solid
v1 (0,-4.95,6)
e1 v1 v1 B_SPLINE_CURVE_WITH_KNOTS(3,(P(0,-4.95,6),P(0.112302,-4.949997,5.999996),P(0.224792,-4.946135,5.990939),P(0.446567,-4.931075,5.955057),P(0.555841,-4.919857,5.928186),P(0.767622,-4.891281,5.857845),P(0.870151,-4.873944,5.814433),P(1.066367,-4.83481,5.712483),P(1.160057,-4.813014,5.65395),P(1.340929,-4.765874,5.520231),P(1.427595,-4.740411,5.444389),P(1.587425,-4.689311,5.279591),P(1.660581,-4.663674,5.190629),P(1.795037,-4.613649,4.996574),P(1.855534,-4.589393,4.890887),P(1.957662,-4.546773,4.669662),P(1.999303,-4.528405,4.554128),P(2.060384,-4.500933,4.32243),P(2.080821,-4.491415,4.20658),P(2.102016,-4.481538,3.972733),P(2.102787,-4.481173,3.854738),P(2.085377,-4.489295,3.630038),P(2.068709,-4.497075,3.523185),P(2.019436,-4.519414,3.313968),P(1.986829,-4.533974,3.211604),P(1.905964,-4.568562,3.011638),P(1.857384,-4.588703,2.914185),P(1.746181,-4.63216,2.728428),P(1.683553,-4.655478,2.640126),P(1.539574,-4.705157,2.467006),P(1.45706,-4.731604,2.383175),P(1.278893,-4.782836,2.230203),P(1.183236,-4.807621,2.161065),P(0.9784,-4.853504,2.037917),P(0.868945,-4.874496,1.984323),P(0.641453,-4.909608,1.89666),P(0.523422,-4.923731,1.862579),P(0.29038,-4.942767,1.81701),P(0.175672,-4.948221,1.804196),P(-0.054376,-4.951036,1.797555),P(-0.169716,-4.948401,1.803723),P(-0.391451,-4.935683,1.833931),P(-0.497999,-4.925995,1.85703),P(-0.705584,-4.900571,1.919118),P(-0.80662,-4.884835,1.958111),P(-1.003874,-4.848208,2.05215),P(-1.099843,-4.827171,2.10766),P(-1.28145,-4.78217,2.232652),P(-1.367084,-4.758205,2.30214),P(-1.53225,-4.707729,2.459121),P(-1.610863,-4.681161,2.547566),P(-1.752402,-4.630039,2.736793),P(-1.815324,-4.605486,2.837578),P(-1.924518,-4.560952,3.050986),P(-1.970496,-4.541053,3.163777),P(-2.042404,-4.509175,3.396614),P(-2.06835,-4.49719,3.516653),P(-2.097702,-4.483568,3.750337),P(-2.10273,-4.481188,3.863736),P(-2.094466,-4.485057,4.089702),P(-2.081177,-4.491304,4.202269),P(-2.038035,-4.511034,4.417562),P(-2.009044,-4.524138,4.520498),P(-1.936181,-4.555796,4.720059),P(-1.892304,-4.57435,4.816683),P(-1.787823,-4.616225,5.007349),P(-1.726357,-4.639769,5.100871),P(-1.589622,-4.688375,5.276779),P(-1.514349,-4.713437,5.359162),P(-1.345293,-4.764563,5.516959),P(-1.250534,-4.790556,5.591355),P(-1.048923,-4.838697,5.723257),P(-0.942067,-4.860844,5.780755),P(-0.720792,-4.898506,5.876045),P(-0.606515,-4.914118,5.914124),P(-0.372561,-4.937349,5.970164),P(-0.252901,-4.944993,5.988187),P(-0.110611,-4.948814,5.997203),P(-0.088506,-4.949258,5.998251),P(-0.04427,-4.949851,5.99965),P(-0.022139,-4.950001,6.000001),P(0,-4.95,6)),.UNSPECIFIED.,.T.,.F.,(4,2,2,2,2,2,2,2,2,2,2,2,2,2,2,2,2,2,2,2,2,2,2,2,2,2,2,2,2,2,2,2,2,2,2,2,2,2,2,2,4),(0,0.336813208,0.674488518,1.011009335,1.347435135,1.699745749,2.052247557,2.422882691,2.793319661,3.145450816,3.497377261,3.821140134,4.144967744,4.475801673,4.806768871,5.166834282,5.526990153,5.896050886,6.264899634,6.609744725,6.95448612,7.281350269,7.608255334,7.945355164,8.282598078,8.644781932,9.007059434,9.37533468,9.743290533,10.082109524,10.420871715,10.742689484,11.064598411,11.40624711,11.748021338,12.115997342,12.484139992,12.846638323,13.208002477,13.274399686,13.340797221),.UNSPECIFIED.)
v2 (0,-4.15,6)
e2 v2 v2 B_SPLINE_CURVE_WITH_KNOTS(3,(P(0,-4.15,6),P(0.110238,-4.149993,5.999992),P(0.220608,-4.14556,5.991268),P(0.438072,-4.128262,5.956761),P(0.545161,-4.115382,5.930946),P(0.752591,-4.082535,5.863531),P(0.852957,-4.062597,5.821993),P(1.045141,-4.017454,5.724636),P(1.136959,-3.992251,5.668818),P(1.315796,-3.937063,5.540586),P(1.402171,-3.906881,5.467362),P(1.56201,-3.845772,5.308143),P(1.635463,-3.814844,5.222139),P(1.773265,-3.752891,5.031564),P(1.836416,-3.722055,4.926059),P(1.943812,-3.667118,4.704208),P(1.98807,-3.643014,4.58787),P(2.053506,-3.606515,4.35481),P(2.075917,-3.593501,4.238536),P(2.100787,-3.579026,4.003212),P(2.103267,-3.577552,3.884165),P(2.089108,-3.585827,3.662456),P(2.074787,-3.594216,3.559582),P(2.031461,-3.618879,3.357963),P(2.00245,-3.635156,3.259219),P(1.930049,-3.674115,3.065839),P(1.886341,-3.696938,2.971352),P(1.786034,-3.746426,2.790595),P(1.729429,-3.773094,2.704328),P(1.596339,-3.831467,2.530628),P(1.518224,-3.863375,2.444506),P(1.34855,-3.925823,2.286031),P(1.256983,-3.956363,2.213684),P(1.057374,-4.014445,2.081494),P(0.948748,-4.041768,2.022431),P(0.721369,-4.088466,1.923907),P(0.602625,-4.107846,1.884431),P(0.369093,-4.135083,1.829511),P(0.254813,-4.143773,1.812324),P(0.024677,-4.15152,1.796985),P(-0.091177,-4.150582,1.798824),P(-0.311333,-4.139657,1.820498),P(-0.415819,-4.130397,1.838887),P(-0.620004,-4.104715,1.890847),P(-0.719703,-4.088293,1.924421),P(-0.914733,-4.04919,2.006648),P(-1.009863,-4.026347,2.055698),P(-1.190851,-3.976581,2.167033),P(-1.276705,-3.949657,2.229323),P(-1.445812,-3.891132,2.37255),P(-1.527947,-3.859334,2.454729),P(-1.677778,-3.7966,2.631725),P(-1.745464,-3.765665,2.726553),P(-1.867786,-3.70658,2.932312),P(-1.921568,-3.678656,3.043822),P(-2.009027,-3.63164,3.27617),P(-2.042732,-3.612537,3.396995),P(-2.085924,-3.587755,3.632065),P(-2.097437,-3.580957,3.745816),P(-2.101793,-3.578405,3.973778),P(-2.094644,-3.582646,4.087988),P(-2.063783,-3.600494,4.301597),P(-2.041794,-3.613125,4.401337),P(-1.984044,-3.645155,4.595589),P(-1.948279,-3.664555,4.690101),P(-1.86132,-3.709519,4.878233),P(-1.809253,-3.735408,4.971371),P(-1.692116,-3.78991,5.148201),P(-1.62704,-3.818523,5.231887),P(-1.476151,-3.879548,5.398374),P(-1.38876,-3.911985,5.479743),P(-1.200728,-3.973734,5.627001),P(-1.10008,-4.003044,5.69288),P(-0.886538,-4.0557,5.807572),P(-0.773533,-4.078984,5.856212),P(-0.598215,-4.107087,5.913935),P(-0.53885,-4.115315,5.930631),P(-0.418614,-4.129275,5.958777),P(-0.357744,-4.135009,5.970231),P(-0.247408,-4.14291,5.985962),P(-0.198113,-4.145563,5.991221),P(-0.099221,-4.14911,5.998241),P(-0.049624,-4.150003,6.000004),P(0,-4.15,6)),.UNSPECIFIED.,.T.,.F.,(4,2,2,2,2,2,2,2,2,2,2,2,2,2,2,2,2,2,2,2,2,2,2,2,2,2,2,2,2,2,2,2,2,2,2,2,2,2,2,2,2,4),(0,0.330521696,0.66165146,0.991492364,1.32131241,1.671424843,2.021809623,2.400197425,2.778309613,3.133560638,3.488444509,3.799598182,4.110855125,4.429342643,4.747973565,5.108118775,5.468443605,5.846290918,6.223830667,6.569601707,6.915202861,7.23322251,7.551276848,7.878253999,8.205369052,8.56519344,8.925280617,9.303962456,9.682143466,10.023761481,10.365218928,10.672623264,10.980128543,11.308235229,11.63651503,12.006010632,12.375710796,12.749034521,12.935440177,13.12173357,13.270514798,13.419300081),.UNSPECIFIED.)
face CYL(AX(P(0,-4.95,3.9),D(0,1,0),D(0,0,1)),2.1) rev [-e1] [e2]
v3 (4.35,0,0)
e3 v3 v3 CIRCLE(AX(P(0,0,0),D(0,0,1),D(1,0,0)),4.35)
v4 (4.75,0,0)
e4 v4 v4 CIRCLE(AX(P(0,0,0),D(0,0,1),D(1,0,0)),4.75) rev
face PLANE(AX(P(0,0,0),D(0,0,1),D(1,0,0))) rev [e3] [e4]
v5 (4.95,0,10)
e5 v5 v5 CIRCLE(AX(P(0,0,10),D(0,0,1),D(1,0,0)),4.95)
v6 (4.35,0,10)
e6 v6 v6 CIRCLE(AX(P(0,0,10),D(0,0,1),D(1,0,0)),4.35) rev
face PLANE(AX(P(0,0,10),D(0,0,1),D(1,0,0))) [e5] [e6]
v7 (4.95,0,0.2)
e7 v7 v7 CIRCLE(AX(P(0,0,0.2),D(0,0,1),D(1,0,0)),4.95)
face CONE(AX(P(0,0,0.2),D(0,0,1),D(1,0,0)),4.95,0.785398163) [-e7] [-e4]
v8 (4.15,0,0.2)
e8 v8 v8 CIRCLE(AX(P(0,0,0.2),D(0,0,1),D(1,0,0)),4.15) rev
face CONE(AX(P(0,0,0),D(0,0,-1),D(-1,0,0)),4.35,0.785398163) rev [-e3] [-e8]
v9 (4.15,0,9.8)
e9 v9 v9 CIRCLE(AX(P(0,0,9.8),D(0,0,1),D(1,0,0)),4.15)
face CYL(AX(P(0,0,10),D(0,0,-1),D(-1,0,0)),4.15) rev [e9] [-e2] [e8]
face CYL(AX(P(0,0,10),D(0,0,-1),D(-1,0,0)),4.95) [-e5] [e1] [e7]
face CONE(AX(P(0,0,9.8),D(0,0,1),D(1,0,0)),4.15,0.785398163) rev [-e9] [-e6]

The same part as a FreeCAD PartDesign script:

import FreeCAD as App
import Part
import Sketcher

V = App.Vector


def edges_at(feature, points):
    """Names of the edges that pass closest to the given points."""
    edges = feature.Shape.Edges
    near = lambda p: min(range(len(edges)), key=lambda i: edges[i].distToShape(Part.Vertex(*p))[0])
    return sorted({f"Edge{near(p) + 1}" for p in points})

doc = App.newDocument("Part")
params = doc.addObject("Spreadsheet::Sheet", "Params")
for row, (alias, value) in enumerate([
    ("sketch1_diameter", "9.9 mm"),
    ("sketch1_diameter2", "8.3 mm"),
    ("pad1_length", "10 mm"),
    ("chamfer_size", "0.2 mm"),
    ("sketch2_diameter", "4.2 mm"),
], start=1):
    params.set(f"A{row}", alias)
    params.set(f"B{row}", "=" + value)
    params.setAlias(f"B{row}", alias)

body = doc.addObject("PartDesign::Body", "Body")

# Sketch on XY plane
sketch1 = body.newObject("Sketcher::SketchObject", "Sketch")
sketch1.AttachmentSupport = (doc.getObject("XY_Plane"), [""])
sketch1.MapMode = "FlatFace"
sketch1.addGeometry([
    Part.Circle(V(0, 0, 0), V(0, 0, 1), 4.95),
    Part.Circle(V(0, 0, 0), V(0, 0, 1), 4.15),
], False)
sketch1.addConstraint([
    Sketcher.Constraint("Coincident", 0, 3, -1, 1),
    Sketcher.Constraint("Coincident", 1, 3, -1, 1),
    Sketcher.Constraint("Diameter", 0, 9.9),
    Sketcher.Constraint("Diameter", 1, 8.3),
])
sketch1.setExpression("Constraints[2]", "Params.sketch1_diameter")
sketch1.setExpression("Constraints[3]", "Params.sketch1_diameter2")
pad1 = body.newObject("PartDesign::Pad", "Pad")
pad1.Profile = sketch1
pad1.setExpression("Length", "Params.pad1_length")
doc.recompute()

chamfer = body.newObject("PartDesign::Chamfer", "Chamfer")
chamfer.Base = (pad1, edges_at(pad1, [(-4.95, 0, 0), (-4.15, 0, 0), (-4.15, 0, 10)]))
chamfer.setExpression("Size", "Params.chamfer_size")

# Sketch on XZ plane
sketch2 = body.newObject("Sketcher::SketchObject", "Sketch001")
sketch2.AttachmentSupport = (doc.getObject("XZ_Plane"), [""])
sketch2.MapMode = "FlatFace"
sketch2.addGeometry(Part.Circle(V(0, 3.9, 0), V(0, 0, 1), 2.1), False)
sketch2.addConstraint([
    Sketcher.Constraint("PointOnObject", 0, 3, -2),
    Sketcher.Constraint("Diameter", 0, 4.2),
    Sketcher.Constraint("DistanceY", -1, 1, 0, 3, 3.9),
])
sketch2.setExpression("Constraints[1]", "Params.sketch2_diameter")
pocket1 = body.newObject("PartDesign::Pocket", "Pocket")
pocket1.Profile = sketch2
pocket1.Type = "ThroughAll"
pocket1.Reversed = True

doc.recompute()
